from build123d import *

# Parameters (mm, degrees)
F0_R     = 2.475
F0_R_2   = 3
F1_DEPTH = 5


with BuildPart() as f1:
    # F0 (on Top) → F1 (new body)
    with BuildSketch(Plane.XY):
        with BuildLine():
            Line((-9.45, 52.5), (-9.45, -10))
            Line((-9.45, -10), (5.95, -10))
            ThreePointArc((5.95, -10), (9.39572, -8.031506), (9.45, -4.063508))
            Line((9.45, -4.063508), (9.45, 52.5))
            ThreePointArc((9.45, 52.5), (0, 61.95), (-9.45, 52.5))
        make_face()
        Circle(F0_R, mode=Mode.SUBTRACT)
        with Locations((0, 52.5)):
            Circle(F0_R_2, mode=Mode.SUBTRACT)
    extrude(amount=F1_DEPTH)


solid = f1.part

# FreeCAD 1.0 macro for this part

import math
import FreeCAD as App
import Part
import Sketcher
from FreeCAD import Vector
Q = App.Units.Quantity

doc = App.newDocument("Part")
params = doc.addObject("Spreadsheet::Sheet", "Params")
for row, (alias, value) in enumerate([
    ("sketch1_diameter", "6 mm"),
    ("sketch1_radius", "4 mm"),
    ("sketch1_diameter2", "4.95 mm"),
    ("sketch1_radius2", "9.45 mm"),
    ("sketch1_width", "15.4 mm"),
    ("pad1_length", "5 mm"),
], start=1):
    params.set(f"A{row}", alias)
    params.set(f"B{row}", "=" + value)
    params.setAlias(f"B{row}", alias)

body = doc.addObject("PartDesign::Body", "Body")

sketch1 = body.newObject("Sketcher::SketchObject", "Sketch")
sketch1.AttachmentSupport = (doc.getObject("XY_Plane"), [""])
sketch1.MapMode = "FlatFace"
sketch1.addGeometry([
    Part.LineSegment(Vector(-9.4, 52.5, 0), Vector(-9.4, -10, 0)),
    Part.LineSegment(Vector(-9.4, -10, 0), Vector(6, -10, 0)),
    Part.ArcOfCircle(Part.Circle(Vector(6, -6, 0), Vector(0, 0, 1), 4), math.radians(-90), math.radians(29)),
    Part.LineSegment(Vector(9.4, -4.1, 0), Vector(9.4, 52.5, 0)),
    Part.ArcOfCircle(Part.Circle(Vector(0, 52.5, 0), Vector(0, 0, 1), 9.4), math.radians(0), math.radians(180)),
    Part.Circle(Vector(0, 0, 0), Vector(0, 0, 1), 2.5),
    Part.Circle(Vector(0, 52.5, 0), Vector(0, 0, 1), 3),
], False)
sketch1.addConstraint([
    Sketcher.Constraint("Coincident", 0, 2, 1, 1),
    Sketcher.Constraint("Tangent", 1, 2, 2, 1),
    Sketcher.Constraint("Coincident", 2, 2, 3, 1),
    Sketcher.Constraint("Tangent", 3, 2, 4, 1),
    Sketcher.Constraint("Tangent", 4, 2, 0, 1),
    Sketcher.Constraint("Vertical", 0),
    Sketcher.Constraint("Horizontal", 1),
    Sketcher.Constraint("Vertical", 3),
    Sketcher.Constraint("Coincident", 5, 3, -1, 1),
    Sketcher.Constraint("Coincident", 6, 3, 4, 3),
    Sketcher.Constraint("PointOnObject", 4, 3, -2),
    Sketcher.Constraint("Diameter", 6, Q("6 mm")),
    Sketcher.Constraint("Radius", 2, Q("4 mm")),
    Sketcher.Constraint("Diameter", 5, Q("4.95 mm")),
    Sketcher.Constraint("Radius", 4, Q("9.45 mm")),
    Sketcher.Constraint("DistanceX", 1, 1, 1, 2, Q("15.4 mm")),
    Sketcher.Constraint("DistanceY", 0, 2, 0, 1, Q("62.5 mm")),
    Sketcher.Constraint("DistanceY", 2, 3, -1, 1, Q("6 mm")),
])
sketch1.setExpression("Constraints[11]", "Params.sketch1_diameter")
sketch1.setExpression("Constraints[12]", "Params.sketch1_radius")
sketch1.setExpression("Constraints[13]", "Params.sketch1_diameter2")
sketch1.setExpression("Constraints[14]", "Params.sketch1_radius2")
sketch1.setExpression("Constraints[15]", "Params.sketch1_width")
pad1 = body.newObject("PartDesign::Pad", "Pad")
pad1.Profile = sketch1
pad1.setExpression("Length", "Params.pad1_length")

doc.recompute()
